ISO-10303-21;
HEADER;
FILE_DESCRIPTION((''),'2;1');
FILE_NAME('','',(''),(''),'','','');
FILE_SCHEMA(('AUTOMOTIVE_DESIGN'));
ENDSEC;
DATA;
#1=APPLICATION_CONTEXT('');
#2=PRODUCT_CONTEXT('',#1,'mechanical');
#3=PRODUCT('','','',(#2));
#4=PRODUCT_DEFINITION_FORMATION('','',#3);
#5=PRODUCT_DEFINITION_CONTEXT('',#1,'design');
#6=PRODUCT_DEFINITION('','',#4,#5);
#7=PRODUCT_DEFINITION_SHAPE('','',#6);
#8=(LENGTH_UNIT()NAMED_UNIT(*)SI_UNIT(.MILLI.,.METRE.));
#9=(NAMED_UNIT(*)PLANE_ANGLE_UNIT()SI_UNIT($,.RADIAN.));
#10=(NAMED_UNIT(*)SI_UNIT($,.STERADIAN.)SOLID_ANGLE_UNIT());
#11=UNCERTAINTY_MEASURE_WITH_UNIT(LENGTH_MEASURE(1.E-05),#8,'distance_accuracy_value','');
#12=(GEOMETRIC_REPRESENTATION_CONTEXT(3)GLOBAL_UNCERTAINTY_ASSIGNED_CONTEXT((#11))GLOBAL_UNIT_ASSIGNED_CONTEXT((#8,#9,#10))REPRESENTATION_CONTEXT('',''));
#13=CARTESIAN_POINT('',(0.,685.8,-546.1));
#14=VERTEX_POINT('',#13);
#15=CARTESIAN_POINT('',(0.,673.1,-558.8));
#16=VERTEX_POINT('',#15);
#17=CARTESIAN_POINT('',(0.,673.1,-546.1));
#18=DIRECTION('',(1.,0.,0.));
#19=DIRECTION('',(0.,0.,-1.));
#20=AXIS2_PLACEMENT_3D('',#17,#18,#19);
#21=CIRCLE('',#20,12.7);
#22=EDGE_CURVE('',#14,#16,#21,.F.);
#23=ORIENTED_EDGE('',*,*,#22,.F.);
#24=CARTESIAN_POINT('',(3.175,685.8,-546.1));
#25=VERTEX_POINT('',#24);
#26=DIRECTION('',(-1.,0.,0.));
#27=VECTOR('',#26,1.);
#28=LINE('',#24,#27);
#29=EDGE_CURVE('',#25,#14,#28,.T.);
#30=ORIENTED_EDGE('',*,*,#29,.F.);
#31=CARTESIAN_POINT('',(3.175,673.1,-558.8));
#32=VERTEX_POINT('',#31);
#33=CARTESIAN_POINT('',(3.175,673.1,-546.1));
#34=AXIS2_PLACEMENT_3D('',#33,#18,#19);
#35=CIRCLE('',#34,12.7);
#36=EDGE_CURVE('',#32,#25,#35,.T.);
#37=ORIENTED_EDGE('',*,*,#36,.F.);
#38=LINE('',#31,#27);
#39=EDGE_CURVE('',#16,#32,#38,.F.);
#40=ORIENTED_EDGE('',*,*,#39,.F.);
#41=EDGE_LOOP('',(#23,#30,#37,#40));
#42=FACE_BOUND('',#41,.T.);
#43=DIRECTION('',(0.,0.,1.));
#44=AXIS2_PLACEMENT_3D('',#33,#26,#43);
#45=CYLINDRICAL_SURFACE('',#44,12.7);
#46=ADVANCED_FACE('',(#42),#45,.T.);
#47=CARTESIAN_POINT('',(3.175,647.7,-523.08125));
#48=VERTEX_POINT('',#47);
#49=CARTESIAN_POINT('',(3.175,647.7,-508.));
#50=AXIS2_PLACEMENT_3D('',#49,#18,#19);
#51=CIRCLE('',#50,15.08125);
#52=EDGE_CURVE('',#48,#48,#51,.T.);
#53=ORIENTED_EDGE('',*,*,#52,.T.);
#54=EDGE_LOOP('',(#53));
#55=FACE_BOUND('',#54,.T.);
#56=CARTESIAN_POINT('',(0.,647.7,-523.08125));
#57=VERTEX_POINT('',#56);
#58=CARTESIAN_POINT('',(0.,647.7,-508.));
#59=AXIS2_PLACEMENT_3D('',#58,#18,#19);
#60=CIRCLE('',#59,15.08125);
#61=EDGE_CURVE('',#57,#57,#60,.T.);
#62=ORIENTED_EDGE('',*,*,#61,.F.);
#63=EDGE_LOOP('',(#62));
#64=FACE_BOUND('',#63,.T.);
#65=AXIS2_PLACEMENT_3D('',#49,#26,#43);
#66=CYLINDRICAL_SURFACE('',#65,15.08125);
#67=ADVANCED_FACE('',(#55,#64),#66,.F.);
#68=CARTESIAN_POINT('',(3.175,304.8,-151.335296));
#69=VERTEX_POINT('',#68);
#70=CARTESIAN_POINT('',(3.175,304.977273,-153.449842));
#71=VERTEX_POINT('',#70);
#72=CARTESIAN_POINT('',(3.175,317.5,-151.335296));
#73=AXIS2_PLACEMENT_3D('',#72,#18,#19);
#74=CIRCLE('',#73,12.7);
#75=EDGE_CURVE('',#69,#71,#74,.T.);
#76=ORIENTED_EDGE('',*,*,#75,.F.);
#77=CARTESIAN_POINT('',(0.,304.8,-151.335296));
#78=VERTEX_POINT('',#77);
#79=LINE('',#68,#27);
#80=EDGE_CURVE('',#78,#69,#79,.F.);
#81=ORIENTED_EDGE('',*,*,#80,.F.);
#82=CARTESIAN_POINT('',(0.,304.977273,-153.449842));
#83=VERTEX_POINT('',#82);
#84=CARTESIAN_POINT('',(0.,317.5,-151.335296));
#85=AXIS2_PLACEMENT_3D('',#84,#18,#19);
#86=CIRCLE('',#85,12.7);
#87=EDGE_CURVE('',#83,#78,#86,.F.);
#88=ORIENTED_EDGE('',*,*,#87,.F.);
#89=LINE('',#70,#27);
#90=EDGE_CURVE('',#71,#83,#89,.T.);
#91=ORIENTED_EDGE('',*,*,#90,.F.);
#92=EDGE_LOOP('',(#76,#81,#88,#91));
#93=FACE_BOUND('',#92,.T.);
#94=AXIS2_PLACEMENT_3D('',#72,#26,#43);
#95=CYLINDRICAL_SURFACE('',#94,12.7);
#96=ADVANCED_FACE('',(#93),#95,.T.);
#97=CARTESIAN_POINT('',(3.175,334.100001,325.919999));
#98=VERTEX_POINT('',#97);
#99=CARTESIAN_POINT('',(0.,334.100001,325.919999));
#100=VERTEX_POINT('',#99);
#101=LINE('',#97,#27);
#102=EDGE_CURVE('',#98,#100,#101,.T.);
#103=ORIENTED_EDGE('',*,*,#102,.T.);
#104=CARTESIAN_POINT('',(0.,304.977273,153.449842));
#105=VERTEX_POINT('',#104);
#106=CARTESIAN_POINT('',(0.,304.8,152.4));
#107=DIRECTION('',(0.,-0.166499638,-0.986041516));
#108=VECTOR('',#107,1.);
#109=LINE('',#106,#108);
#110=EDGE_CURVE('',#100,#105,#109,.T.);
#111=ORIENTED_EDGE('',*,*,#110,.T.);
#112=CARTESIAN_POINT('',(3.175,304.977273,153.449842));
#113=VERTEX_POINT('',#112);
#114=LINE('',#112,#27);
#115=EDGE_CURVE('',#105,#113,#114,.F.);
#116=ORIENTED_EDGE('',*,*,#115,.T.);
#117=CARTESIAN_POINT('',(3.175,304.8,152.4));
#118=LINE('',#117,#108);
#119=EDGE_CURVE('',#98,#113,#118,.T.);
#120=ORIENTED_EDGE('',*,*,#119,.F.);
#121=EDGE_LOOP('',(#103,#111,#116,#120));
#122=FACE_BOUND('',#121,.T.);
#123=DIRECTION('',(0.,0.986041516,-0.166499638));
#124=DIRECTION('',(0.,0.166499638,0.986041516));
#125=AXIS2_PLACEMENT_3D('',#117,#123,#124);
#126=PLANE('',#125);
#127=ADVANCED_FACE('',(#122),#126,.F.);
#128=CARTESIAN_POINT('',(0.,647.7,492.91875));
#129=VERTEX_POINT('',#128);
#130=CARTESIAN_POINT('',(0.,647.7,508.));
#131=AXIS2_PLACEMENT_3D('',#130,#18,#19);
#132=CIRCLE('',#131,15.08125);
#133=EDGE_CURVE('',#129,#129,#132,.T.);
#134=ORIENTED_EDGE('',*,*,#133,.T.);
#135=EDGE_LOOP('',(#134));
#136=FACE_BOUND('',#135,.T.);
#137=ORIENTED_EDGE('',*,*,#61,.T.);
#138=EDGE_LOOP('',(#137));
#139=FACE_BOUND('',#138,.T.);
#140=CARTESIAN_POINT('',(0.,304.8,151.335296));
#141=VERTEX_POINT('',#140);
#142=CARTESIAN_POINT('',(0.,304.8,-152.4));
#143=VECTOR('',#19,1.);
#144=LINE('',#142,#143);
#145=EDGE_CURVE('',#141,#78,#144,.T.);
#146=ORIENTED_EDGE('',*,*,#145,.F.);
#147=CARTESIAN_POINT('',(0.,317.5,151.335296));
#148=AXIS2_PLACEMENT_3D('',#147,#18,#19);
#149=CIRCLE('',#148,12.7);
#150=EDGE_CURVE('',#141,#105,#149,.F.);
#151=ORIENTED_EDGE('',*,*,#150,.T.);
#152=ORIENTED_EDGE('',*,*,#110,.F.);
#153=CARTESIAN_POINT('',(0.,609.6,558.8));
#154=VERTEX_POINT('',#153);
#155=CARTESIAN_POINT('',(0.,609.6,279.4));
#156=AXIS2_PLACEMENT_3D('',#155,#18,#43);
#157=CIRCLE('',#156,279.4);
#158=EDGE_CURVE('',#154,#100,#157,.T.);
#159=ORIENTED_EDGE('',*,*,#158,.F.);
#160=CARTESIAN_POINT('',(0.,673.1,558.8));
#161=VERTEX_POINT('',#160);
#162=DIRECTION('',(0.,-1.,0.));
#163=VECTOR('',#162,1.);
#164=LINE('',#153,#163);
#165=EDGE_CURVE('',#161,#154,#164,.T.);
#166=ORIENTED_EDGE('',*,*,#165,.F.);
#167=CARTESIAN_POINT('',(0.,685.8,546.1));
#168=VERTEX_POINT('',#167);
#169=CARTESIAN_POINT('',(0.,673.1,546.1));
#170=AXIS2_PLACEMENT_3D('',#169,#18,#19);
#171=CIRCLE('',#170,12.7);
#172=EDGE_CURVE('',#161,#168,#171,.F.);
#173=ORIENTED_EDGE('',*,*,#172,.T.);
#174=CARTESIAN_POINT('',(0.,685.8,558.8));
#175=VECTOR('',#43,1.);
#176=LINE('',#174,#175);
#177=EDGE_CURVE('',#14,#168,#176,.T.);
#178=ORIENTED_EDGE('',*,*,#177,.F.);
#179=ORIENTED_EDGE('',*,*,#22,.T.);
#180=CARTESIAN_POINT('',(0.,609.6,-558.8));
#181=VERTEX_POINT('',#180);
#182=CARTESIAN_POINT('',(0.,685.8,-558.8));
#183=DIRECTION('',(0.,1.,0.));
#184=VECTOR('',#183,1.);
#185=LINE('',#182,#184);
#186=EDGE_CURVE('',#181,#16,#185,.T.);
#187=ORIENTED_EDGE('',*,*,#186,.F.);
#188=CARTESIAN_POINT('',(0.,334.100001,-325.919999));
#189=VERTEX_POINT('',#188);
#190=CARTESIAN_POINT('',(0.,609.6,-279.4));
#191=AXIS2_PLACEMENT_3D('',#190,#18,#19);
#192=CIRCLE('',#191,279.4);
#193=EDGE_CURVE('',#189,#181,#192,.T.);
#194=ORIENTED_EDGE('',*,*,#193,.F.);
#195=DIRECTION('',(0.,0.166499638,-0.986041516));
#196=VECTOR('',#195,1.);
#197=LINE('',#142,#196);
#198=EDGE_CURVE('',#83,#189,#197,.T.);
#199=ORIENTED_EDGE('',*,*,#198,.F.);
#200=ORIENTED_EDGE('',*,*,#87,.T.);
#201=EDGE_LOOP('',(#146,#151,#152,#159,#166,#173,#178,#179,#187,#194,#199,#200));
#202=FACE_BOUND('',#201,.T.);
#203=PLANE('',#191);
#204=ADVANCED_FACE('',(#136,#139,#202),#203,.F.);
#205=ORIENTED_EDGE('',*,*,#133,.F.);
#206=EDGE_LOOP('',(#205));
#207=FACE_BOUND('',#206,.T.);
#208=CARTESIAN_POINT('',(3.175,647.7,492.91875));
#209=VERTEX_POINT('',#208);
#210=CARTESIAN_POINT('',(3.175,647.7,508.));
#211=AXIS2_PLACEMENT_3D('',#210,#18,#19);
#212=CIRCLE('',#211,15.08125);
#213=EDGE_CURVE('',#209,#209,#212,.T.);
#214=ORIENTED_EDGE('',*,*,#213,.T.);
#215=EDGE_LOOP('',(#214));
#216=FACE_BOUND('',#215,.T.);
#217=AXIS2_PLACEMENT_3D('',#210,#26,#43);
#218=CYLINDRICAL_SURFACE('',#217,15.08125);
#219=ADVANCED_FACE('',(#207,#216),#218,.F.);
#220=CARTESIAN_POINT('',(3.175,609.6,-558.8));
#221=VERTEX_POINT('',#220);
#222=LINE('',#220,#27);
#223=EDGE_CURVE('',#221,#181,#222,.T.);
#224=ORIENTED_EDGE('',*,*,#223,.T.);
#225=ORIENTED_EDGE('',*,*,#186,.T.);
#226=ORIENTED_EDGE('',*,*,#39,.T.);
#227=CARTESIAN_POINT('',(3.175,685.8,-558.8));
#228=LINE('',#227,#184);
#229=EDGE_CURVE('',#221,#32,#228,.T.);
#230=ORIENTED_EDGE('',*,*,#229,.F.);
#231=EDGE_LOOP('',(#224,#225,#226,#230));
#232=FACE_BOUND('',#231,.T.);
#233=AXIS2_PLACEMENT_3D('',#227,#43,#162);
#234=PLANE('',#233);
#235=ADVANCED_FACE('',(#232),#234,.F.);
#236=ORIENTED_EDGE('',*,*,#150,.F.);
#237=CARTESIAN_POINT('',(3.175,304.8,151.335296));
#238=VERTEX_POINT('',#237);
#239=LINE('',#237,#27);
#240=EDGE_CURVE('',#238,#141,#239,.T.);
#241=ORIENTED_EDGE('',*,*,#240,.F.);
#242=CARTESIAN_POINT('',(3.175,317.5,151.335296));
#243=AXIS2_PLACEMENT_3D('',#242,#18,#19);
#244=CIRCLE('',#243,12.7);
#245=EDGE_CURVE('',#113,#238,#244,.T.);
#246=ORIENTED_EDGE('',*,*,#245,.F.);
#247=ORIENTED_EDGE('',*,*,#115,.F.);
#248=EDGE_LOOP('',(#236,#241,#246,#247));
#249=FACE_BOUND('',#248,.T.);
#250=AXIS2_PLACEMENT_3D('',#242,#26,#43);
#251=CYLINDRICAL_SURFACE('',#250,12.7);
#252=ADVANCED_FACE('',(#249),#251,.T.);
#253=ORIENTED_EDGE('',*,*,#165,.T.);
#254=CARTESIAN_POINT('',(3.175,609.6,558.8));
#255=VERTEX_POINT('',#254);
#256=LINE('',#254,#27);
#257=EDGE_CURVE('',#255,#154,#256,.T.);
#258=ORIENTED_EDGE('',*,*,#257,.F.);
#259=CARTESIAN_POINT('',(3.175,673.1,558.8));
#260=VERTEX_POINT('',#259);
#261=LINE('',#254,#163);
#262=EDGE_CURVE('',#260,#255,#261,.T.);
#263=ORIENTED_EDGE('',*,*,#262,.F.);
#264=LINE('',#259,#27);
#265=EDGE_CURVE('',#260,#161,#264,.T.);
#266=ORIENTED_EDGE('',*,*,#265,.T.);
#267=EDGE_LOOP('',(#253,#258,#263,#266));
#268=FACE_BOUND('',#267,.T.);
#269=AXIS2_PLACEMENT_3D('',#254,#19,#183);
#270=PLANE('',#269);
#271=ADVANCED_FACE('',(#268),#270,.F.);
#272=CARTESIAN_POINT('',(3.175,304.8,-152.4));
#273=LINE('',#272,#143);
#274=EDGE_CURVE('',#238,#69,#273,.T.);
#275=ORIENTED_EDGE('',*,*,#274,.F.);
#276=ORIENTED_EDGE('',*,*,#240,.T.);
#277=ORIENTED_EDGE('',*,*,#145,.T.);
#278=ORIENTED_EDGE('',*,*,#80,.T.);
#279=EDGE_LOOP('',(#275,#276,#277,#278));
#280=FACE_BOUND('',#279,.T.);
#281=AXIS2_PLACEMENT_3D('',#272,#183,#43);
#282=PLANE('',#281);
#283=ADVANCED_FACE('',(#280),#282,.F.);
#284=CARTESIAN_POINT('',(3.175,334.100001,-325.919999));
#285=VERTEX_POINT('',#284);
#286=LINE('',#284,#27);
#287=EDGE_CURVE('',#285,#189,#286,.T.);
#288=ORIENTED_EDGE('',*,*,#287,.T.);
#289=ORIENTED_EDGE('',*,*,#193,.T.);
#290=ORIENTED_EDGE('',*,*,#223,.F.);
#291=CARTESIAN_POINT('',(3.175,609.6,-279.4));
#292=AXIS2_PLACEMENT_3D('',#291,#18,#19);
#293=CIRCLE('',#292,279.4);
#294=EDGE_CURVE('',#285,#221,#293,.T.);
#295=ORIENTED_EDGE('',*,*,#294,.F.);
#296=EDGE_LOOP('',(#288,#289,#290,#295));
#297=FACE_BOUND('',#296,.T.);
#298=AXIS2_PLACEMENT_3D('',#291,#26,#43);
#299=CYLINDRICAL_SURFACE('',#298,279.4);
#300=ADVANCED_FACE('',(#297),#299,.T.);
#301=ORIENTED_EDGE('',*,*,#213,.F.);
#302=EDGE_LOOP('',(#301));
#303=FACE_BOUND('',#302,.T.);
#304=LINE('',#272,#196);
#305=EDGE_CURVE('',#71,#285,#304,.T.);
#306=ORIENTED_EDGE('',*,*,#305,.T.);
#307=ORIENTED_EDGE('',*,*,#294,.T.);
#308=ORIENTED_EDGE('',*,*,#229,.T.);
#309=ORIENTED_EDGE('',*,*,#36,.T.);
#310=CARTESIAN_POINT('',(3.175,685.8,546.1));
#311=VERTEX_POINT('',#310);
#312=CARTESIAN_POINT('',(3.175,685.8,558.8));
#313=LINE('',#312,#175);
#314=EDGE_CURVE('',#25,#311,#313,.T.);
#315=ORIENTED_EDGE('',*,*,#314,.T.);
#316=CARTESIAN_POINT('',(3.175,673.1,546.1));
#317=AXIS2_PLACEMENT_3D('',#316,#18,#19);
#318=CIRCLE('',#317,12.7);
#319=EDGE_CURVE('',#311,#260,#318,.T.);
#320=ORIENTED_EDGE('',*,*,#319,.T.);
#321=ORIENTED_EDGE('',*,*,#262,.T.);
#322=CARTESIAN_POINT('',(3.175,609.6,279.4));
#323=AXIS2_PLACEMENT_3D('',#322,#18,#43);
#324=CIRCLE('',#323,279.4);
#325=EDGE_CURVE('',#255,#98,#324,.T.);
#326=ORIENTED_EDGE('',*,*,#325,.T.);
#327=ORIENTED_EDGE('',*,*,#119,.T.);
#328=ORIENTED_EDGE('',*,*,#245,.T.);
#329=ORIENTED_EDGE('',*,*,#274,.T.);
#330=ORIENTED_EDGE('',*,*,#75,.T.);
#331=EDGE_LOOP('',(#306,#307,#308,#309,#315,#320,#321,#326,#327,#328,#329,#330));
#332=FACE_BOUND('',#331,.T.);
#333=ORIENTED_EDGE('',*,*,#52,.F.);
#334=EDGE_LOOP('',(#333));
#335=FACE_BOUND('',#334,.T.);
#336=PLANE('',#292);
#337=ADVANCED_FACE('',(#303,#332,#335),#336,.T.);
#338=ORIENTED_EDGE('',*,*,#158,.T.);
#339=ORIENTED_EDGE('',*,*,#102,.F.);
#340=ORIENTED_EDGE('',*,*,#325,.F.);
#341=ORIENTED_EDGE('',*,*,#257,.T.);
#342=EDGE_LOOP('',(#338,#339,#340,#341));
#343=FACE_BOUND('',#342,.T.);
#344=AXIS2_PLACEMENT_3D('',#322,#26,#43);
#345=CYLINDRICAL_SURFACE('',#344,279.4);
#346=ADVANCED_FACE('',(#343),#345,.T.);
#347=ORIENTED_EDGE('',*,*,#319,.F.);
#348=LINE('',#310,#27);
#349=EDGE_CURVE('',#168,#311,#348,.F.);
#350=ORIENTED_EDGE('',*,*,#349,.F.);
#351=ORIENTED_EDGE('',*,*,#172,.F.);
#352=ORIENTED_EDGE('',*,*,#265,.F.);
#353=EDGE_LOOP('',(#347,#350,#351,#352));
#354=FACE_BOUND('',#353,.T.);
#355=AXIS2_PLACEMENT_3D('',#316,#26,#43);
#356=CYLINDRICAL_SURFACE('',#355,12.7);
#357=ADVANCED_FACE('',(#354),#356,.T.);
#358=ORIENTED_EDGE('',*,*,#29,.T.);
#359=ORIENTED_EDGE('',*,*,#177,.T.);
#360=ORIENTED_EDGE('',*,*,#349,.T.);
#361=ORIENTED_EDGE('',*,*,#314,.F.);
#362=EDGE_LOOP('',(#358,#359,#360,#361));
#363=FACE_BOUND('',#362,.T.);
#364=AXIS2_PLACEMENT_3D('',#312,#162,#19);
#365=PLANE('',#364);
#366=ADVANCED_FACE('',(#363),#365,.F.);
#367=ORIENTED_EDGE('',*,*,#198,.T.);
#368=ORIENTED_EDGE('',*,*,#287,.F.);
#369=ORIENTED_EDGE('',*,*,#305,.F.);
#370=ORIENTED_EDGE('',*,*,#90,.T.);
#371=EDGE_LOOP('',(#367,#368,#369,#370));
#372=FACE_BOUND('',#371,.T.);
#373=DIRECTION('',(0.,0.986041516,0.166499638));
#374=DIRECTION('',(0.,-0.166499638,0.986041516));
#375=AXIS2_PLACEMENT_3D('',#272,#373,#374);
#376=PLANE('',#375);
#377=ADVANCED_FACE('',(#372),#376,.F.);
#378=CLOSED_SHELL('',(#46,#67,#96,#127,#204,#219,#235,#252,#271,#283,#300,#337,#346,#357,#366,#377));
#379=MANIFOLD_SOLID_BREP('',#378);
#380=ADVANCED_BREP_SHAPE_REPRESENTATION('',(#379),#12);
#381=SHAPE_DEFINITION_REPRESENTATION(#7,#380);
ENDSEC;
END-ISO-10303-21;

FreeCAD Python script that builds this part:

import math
import FreeCAD as App
import Part
import Sketcher

V = App.Vector
Q = App.Units.Quantity


def edges_at(feature, points):
    """Names of the edges that pass closest to the given points."""
    edges = feature.Shape.Edges
    near = lambda p: min(range(len(edges)), key=lambda i: edges[i].distToShape(Part.Vertex(*p))[0])
    return sorted({f"Edge{near(p) + 1}" for p in points})

doc = App.newDocument("Part")
body = doc.addObject("PartDesign::Body", "Body")

# Sketch on YZ plane
sketch1 = body.newObject("Sketcher::SketchObject", "Sketch")
sketch1.AttachmentSupport = (doc.getObject("YZ_Plane"), [""])
sketch1.MapMode = "FlatFace"
sketch1.addGeometry(Part.LineSegment(V(686, 559, 0), V(610, 559, 0)), False)
sketch1.addGeometry(Part.ArcOfCircle(Part.Circle(V(610, 279, 0), V(0, 0, 1), 279), math.radians(90), math.radians(170)), False)
sketch1.addGeometry(Part.LineSegment(V(334, 326, 0), V(305, 152, 0)), False)
sketch1.addGeometry(Part.LineSegment(V(305, 152, 0), V(305, -152, 0)), False)
sketch1.addGeometry(Part.LineSegment(V(305, -152, 0), V(334, -326, 0)), False)
sketch1.addGeometry(Part.ArcOfCircle(Part.Circle(V(610, -279, 0), V(0, 0, 1), 279), math.radians(-170), math.radians(-90)), False)
sketch1.addGeometry(Part.LineSegment(V(610, -559, 0), V(686, -559, 0)), False)
sketch1.addGeometry(Part.LineSegment(V(686, -559, 0), V(686, 559, 0)), False)
sketch1.addGeometry(Part.Circle(V(648, -508, 0), V(0, 0, 1), 15), False)
sketch1.addGeometry(Part.Circle(V(648, 508, 0), V(0, 0, 1), 15), False)
sketch1.addConstraint(Sketcher.Constraint("Tangent", 0, 2, 1, 1))
sketch1.addConstraint(Sketcher.Constraint("Tangent", 1, 2, 2, 1))
sketch1.addConstraint(Sketcher.Constraint("Coincident", 2, 2, 3, 1))
sketch1.addConstraint(Sketcher.Constraint("Coincident", 3, 2, 4, 1))
sketch1.addConstraint(Sketcher.Constraint("Tangent", 4, 2, 5, 1))
sketch1.addConstraint(Sketcher.Constraint("Tangent", 5, 2, 6, 1))
sketch1.addConstraint(Sketcher.Constraint("Coincident", 6, 2, 7, 1))
sketch1.addConstraint(Sketcher.Constraint("Coincident", 7, 2, 0, 1))
sketch1.addConstraint(Sketcher.Constraint("Horizontal", 0))
sketch1.addConstraint(Sketcher.Constraint("Vertical", 3))
sketch1.addConstraint(Sketcher.Constraint("Horizontal", 6))
sketch1.addConstraint(Sketcher.Constraint("Vertical", 7))
sketch1.addConstraint(Sketcher.Constraint("Equal", 1, 5))
sketch1.addConstraint(Sketcher.Constraint("Equal", 8, 9))
sketch1.addConstraint(Sketcher.Constraint("Symmetric", 1, 3, 5, 3, -1))
sketch1.addConstraint(Sketcher.Constraint("Symmetric", 8, 3, 9, 3, -1))
sketch1.addConstraint(Sketcher.Constraint("Equal", 2, 4))
sketch1.addConstraint(Sketcher.Constraint("Radius", 1, Q("11 in")))
sketch1.addConstraint(Sketcher.Constraint("DistanceX", 0, 2, 0, 1, Q("3 in")))
sketch1.addConstraint(Sketcher.Constraint("DistanceY", 3, 2, 3, 1, Q("12 in")))
sketch1.addConstraint(Sketcher.Constraint("DistanceY", 7, 1, 7, 2, Q("44 in")))
sketch1.addConstraint(Sketcher.Constraint("Diameter", 8, Q("1.1875 in")))
sketch1.addConstraint(Sketcher.Constraint("DistanceX", -1, 1, 1, 3, Q("24 in")))
sketch1.addConstraint(Sketcher.Constraint("DistanceY", 8, 3, -1, 1, Q("20 in")))
sketch1.addConstraint(Sketcher.Constraint("DistanceX", -1, 1, 2, 2, Q("12 in")))
sketch1.addConstraint(Sketcher.Constraint("DistanceX", -1, 1, 8, 3, Q("25.5 in")))
pad1 = body.newObject("PartDesign::Pad", "Pad")
pad1.Profile = sketch1
pad1.Length = Q("0.125 in")
doc.recompute()

fillet = body.newObject("PartDesign::Fillet", "Fillet")
fillet.Base = (pad1, edges_at(pad1, [
    (1.587, 304.8, -152.4),
    (1.587, 304.8, 152.4),
    (1.587, 685.8, 558.8),
    (1.587, 685.8, -558.8),
]))
fillet.Radius = Q("0.5 in")

doc.recompute()
